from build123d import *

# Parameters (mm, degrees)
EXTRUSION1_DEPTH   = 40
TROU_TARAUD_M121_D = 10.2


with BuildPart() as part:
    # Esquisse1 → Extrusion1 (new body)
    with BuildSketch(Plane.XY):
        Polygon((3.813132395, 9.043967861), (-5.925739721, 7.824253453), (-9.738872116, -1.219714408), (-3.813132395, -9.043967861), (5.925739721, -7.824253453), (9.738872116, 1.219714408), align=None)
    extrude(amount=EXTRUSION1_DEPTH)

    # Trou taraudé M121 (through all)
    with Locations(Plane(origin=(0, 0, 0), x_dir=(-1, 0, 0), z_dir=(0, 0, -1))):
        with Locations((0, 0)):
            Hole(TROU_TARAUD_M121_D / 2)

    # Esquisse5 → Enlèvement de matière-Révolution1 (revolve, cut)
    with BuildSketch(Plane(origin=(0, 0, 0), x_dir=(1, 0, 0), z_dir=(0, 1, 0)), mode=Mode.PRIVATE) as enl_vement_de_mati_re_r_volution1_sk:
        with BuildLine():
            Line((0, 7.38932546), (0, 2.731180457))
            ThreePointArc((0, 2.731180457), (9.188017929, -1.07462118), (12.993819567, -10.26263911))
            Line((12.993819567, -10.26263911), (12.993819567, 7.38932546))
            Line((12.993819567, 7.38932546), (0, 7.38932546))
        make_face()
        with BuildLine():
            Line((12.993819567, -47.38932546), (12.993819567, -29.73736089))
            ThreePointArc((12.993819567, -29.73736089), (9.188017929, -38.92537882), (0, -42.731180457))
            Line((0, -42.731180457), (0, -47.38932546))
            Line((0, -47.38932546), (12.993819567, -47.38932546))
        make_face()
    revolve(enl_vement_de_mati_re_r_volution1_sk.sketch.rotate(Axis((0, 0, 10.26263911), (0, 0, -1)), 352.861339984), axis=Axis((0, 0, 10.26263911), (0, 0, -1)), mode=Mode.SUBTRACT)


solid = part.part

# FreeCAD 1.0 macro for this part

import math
import FreeCAD as App
import Part
import Sketcher
from FreeCAD import Vector
Q = App.Units.Quantity


def add_polygon(sketch, points):
    """Adds a closed chain of lines whose ends are joined by coincident constraints."""
    first, n = sketch.GeometryCount, len(points)
    for a, b in zip(points, points[1:] + points[:1]):
        sketch.addGeometry(Part.LineSegment(App.Vector(*a, 0), App.Vector(*b, 0)), False)
    for i in range(n):
        sketch.addConstraint(Sketcher.Constraint("Coincident", first + i, 2, first + (i + 1) % n, 1))

doc = App.newDocument("Part")
body = doc.addObject("PartDesign::Body", "Body")

# Sketch on XY plane
sketch1 = body.newObject("Sketcher::SketchObject", "Sketch")
sketch1.AttachmentSupport = (doc.getObject("XY_Plane"), [""])
sketch1.MapMode = "FlatFace"
add_polygon(sketch1, [(4, 9), (-6, 8), (-10, -1), (-4, -9), (6, -8), (10, 1)])  # lines 0-5
sketch1.addConstraint([
    Sketcher.Constraint("Symmetric", 0, 2, 3, 2, -1, 1),
    Sketcher.Constraint("Symmetric", 1, 2, 4, 2, -1, 1),
    Sketcher.Constraint("Symmetric", 2, 2, 5, 2, -1, 1),
    Sketcher.Constraint("Equal", 0, 1),
    Sketcher.Constraint("Equal", 1, 2),
    Sketcher.Constraint("DistanceX", 0, 2, -1, 1, Q("5.92574 mm")),
    Sketcher.Constraint("DistanceX", 1, 2, 2, 2, Q("5.92574 mm")),
    Sketcher.Constraint("DistanceY", 2, 2, 0, 2, Q("16.868221 mm")),
    Sketcher.Constraint("DistanceX", 1, 2, 3, 2, Q("15.664612 mm")),
])
pad1 = body.newObject("PartDesign::Pad", "Pad")
pad1.Profile = sketch1
pad1.Length = 40

# Sketch on XY plane
sketch2 = body.newObject("Sketcher::SketchObject", "Sketch001")
sketch2.AttachmentSupport = (doc.getObject("XY_Plane"), [""])
sketch2.MapMode = "FlatFace"
sketch2.addGeometry(Part.Circle(Vector(0, 0, 0), Vector(0, 0, 1), 5), False)
sketch2.addConstraint([
    Sketcher.Constraint("Coincident", 0, 3, -1, 1),
    Sketcher.Constraint("Diameter", 0, Q("10.2 mm")),
])
doc.recompute()
hole = body.newObject("PartDesign::Hole", "Hole")
hole.Profile = sketch2
hole.ThreadType = "None"
hole.Diameter = 10.2
hole.DepthType = "ThroughAll"
hole.Reversed = True

# Sketch on XZ plane
sketch3 = body.newObject("Sketcher::SketchObject", "Sketch002")
sketch3.AttachmentSupport = (doc.getObject("XZ_Plane"), [""])
sketch3.MapMode = "FlatFace"
sketch3.addGeometry([
    Part.LineSegment(Vector(0, -7.4, 0), Vector(0, -2.7, 0)),  # 0
    Part.ArcOfCircle(Part.Circle(Vector(0, 10.3, 0), Vector(0, 0, 1), 13), math.radians(-90), math.radians(0)),  # 1
    Part.LineSegment(Vector(13, 10.3, 0), Vector(13, -7.4, 0)),  # 2
    Part.LineSegment(Vector(13, -7.4, 0), Vector(0, -7.4, 0)),  # 3
    Part.LineSegment(Vector(13, 47.4, 0), Vector(13, 29.7, 0)),  # 4
    Part.ArcOfCircle(Part.Circle(Vector(0, 29.7, 0), Vector(0, 0, 1), 13), math.radians(0), math.radians(90)),  # 5
    Part.LineSegment(Vector(0, 42.7, 0), Vector(0, 47.4, 0)),  # 6
    Part.LineSegment(Vector(0, 47.4, 0), Vector(13, 47.4, 0)),  # 7
], False)
sketch3.addConstraint([
    Sketcher.Constraint("Coincident", 0, 2, 1, 1),
    Sketcher.Constraint("Tangent", 1, 2, 2, 1),
    Sketcher.Constraint("Coincident", 2, 2, 3, 1),
    Sketcher.Constraint("Coincident", 3, 2, 0, 1),
    Sketcher.Constraint("Tangent", 4, 2, 5, 1),
    Sketcher.Constraint("Coincident", 5, 2, 6, 1),
    Sketcher.Constraint("Coincident", 6, 2, 7, 1),
    Sketcher.Constraint("Coincident", 7, 2, 4, 1),
    Sketcher.Constraint("Vertical", 0),
    Sketcher.Constraint("Vertical", 2),
    Sketcher.Constraint("Horizontal", 3),
    Sketcher.Constraint("Vertical", 4),
    Sketcher.Constraint("Vertical", 6),
    Sketcher.Constraint("Horizontal", 7),
    Sketcher.Constraint("Equal", 1, 5),
    Sketcher.Constraint("PointOnObject", 1, 3, -2),
    Sketcher.Constraint("PointOnObject", 5, 3, -2),
    Sketcher.Constraint("PointOnObject", 0, 2, -2),
    Sketcher.Constraint("PointOnObject", 5, 2, -2),
    Sketcher.Constraint("Equal", 2, 4),
    Sketcher.Constraint("Radius", 1, Q("12.99382 mm")),
    Sketcher.Constraint("DistanceY", 0, 1, 0, 2, Q("4.658145 mm")),
    Sketcher.Constraint("DistanceY", -1, 1, 1, 3, Q("10.262639 mm")),
    Sketcher.Constraint("DistanceY", -1, 1, 5, 3, Q("29.737361 mm")),
])
groove = body.newObject("PartDesign::Groove", "Groove")
groove.Profile = sketch3
groove.ReferenceAxis = (sketch3, ["V_Axis"])
groove.Angle = 360

doc.recompute()
